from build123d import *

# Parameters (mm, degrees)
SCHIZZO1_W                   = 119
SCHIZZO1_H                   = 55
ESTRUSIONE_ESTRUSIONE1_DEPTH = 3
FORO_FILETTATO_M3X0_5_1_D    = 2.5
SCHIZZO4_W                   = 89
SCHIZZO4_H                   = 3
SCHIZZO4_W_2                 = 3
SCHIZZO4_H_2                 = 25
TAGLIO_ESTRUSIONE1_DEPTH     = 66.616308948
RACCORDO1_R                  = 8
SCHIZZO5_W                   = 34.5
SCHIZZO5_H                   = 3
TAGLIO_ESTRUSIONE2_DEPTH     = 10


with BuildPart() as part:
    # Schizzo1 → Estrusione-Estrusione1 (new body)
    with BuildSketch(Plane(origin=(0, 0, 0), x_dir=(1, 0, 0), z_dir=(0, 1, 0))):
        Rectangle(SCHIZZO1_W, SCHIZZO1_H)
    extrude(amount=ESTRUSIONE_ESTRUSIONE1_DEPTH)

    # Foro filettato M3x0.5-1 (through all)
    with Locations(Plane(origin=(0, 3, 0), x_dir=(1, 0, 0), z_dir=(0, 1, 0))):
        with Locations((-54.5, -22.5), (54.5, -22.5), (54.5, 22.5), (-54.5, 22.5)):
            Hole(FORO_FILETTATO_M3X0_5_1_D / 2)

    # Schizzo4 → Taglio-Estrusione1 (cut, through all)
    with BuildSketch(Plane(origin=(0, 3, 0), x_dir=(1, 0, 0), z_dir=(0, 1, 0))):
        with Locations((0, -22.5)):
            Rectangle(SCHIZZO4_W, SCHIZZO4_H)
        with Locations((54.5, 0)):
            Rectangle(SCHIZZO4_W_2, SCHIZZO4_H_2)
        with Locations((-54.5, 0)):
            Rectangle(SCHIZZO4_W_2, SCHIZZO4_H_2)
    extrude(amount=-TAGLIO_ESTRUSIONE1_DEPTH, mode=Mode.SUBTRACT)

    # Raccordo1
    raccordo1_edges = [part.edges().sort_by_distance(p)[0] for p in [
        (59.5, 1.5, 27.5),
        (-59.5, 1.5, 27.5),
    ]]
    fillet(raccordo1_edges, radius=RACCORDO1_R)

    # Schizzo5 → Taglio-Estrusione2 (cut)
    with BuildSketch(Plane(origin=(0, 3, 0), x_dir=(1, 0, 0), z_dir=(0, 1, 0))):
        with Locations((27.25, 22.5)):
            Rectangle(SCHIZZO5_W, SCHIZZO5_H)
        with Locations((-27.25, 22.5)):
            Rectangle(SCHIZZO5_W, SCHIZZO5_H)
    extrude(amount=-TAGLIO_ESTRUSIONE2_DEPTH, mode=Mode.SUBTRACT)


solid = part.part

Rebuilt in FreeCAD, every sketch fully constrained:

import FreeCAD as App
import Part
import Sketcher
from FreeCAD import Vector


def edges_at(feature, points):
    """Names of the edges that pass closest to the given points."""
    edges = feature.Shape.Edges
    near = lambda p: min(range(len(edges)), key=lambda i: edges[i].distToShape(Part.Vertex(*p))[0])
    return sorted({f"Edge{near(p) + 1}" for p in points})


def add_polygon(sketch, points):
    """Adds a closed chain of lines whose ends are joined by coincident constraints."""
    first, n = sketch.GeometryCount, len(points)
    for a, b in zip(points, points[1:] + points[:1]):
        sketch.addGeometry(Part.LineSegment(App.Vector(*a, 0), App.Vector(*b, 0)), False)
    for i in range(n):
        sketch.addConstraint(Sketcher.Constraint("Coincident", first + i, 2, first + (i + 1) % n, 1))

doc = App.newDocument("Part")
body = doc.addObject("PartDesign::Body", "Body")

# Sketch on XZ plane
sketch1 = body.newObject("Sketcher::SketchObject", "Sketch")
sketch1.AttachmentSupport = (doc.getObject("XZ_Plane"), [""])
sketch1.MapMode = "FlatFace"
add_polygon(sketch1, [(-60, -28), (-60, 28), (60, 28), (60, -28)])  # lines 0-3
sketch1.addConstraint([
    Sketcher.Constraint("Vertical", 0),
    Sketcher.Constraint("Horizontal", 1),
    Sketcher.Constraint("Vertical", 2),
    Sketcher.Constraint("Horizontal", 3),
    Sketcher.Constraint("Symmetric", 0, 2, 2, 2, -1, 1),
    Sketcher.Constraint("DistanceX", 1, 1, 1, 2, 119.0),
    Sketcher.Constraint("DistanceY", 0, 1, 0, 2, 55.0),
])
pad1 = body.newObject("PartDesign::Pad", "Pad")
pad1.Profile = sketch1
pad1.Length = 3
pad1.Reversed = True

# Sketch on XZ plane
sketch2 = body.newObject("Sketcher::SketchObject", "Sketch001")
sketch2.AttachmentSupport = (doc.getObject("XZ_Plane"), [""])
sketch2.MapMode = "FlatFace"
sketch2.AttachmentOffset = App.Placement(Vector(0, 0, -3), App.Rotation())
sketch2.addGeometry([
    Part.Circle(Vector(-54.5, 22.5, 0), Vector(0, 0, 1), 1.2),
    Part.Circle(Vector(54.5, 22.5, 0), Vector(0, 0, 1), 1.2),
    Part.Circle(Vector(54.5, -22.5, 0), Vector(0, 0, 1), 1.2),
    Part.Circle(Vector(-54.5, -22.5, 0), Vector(0, 0, 1), 1.2),
], False)
sketch2.addConstraint([
    Sketcher.Constraint("Equal", 0, 1),
    Sketcher.Constraint("Equal", 1, 2),
    Sketcher.Constraint("Equal", 2, 3),
    Sketcher.Constraint("Symmetric", 0, 3, 2, 3, -1, 1),
    Sketcher.Constraint("Symmetric", 1, 3, 3, 3, -1, 1),
    Sketcher.Constraint("Symmetric", 0, 3, 1, 3, -2),
    Sketcher.Constraint("Diameter", 0, 2.5),
    Sketcher.Constraint("DistanceX", 0, 3, 1, 3, 109.0),
    Sketcher.Constraint("DistanceY", 2, 3, 1, 3, 45.0),
])
doc.recompute()
hole = body.newObject("PartDesign::Hole", "Hole")
hole.Profile = sketch2
hole.ThreadType = "None"
hole.Diameter = 2.5
hole.DepthType = "ThroughAll"
hole.Reversed = True

# Sketch on XZ plane
sketch3 = body.newObject("Sketcher::SketchObject", "Sketch002")
sketch3.AttachmentSupport = (doc.getObject("XZ_Plane"), [""])
sketch3.MapMode = "FlatFace"
sketch3.AttachmentOffset = App.Placement(Vector(0, 0, -3), App.Rotation())
add_polygon(sketch3, [(-44.5, 21), (-44.5, 24), (44.5, 24), (44.5, 21)])  # lines 0-3
add_polygon(sketch3, [(53, -12.5), (53, 12.5), (56, 12.5), (56, -12.5)])  # lines 4-7
add_polygon(sketch3, [(-56, -12.5), (-56, 12.5), (-53, 12.5), (-53, -12.5)])  # lines 8-11
sketch3.addConstraint([
    Sketcher.Constraint("Vertical", 0),
    Sketcher.Constraint("Horizontal", 1),
    Sketcher.Constraint("Vertical", 2),
    Sketcher.Constraint("Horizontal", 3),
    Sketcher.Constraint("Vertical", 4),
    Sketcher.Constraint("Horizontal", 5),
    Sketcher.Constraint("Vertical", 6),
    Sketcher.Constraint("Horizontal", 7),
    Sketcher.Constraint("Vertical", 8),
    Sketcher.Constraint("Horizontal", 9),
    Sketcher.Constraint("Vertical", 10),
    Sketcher.Constraint("Horizontal", 11),
    Sketcher.Constraint("Symmetric", 6, 2, 8, 2, -1, 1),
    Sketcher.Constraint("Symmetric", 4, 2, 10, 2, -1, 1),
    Sketcher.Constraint("Horizontal", 5, 2, 8, 2),
    Sketcher.Constraint("Equal", 11, 0),
    Sketcher.Constraint("DistanceX", 1, 1, 1, 2, 89.0),
    Sketcher.Constraint("DistanceX", 5, 1, 5, 2, 3.0),
    Sketcher.Constraint("DistanceY", 4, 1, 4, 2, 25.0),
    Sketcher.Constraint("DistanceY", -1, 1, 0, 2, 24.0),
    Sketcher.Constraint("DistanceX", -1, 1, 4, 2, 53.0),
    Sketcher.Constraint("DistanceX", 0, 2, -1, 1, 44.5),
])
pocket1 = body.newObject("PartDesign::Pocket", "Pocket")
pocket1.Profile = sketch3
pocket1.Type = "ThroughAll"
pocket1.Reversed = True
doc.recompute()

fillet = body.newObject("PartDesign::Fillet", "Fillet")
fillet.Base = (pocket1, edges_at(pocket1, [(59.5, 1.5, 27.5), (-59.5, 1.5, 27.5)]))
fillet.Radius = 8

# Sketch on XZ plane
sketch4 = body.newObject("Sketcher::SketchObject", "Sketch003")
sketch4.AttachmentSupport = (doc.getObject("XZ_Plane"), [""])
sketch4.MapMode = "FlatFace"
sketch4.AttachmentOffset = App.Placement(Vector(0, 0, -3), App.Rotation())
add_polygon(sketch4, [(10, -24), (10, -21), (44.5, -21), (44.5, -24)])  # lines 0-3
add_polygon(sketch4, [(-44.5, -24), (-44.5, -21), (-10, -21), (-10, -24)])  # lines 4-7
sketch4.addConstraint([
    Sketcher.Constraint("Vertical", 0),
    Sketcher.Constraint("Horizontal", 1),
    Sketcher.Constraint("Vertical", 2),
    Sketcher.Constraint("Horizontal", 3),
    Sketcher.Constraint("Vertical", 4),
    Sketcher.Constraint("Horizontal", 5),
    Sketcher.Constraint("Vertical", 6),
    Sketcher.Constraint("Horizontal", 7),
    Sketcher.Constraint("Symmetric", 1, 2, 4, 2, -2),
    Sketcher.Constraint("Symmetric", 3, 2, 6, 2, -2),
    Sketcher.Constraint("DistanceY", 0, 1, 0, 2, 3.0),
    Sketcher.Constraint("DistanceX", 1, 1, 1, 2, 34.5),
    Sketcher.Constraint("DistanceX", -1, 1, 0, 2, 10.0),
    Sketcher.Constraint("DistanceY", 0, 2, -1, 1, 21.0),
])
pocket2 = body.newObject("PartDesign::Pocket", "Pocket001")
pocket2.Profile = sketch4
pocket2.Length = 10
pocket2.Reversed = True

doc.recompute()
